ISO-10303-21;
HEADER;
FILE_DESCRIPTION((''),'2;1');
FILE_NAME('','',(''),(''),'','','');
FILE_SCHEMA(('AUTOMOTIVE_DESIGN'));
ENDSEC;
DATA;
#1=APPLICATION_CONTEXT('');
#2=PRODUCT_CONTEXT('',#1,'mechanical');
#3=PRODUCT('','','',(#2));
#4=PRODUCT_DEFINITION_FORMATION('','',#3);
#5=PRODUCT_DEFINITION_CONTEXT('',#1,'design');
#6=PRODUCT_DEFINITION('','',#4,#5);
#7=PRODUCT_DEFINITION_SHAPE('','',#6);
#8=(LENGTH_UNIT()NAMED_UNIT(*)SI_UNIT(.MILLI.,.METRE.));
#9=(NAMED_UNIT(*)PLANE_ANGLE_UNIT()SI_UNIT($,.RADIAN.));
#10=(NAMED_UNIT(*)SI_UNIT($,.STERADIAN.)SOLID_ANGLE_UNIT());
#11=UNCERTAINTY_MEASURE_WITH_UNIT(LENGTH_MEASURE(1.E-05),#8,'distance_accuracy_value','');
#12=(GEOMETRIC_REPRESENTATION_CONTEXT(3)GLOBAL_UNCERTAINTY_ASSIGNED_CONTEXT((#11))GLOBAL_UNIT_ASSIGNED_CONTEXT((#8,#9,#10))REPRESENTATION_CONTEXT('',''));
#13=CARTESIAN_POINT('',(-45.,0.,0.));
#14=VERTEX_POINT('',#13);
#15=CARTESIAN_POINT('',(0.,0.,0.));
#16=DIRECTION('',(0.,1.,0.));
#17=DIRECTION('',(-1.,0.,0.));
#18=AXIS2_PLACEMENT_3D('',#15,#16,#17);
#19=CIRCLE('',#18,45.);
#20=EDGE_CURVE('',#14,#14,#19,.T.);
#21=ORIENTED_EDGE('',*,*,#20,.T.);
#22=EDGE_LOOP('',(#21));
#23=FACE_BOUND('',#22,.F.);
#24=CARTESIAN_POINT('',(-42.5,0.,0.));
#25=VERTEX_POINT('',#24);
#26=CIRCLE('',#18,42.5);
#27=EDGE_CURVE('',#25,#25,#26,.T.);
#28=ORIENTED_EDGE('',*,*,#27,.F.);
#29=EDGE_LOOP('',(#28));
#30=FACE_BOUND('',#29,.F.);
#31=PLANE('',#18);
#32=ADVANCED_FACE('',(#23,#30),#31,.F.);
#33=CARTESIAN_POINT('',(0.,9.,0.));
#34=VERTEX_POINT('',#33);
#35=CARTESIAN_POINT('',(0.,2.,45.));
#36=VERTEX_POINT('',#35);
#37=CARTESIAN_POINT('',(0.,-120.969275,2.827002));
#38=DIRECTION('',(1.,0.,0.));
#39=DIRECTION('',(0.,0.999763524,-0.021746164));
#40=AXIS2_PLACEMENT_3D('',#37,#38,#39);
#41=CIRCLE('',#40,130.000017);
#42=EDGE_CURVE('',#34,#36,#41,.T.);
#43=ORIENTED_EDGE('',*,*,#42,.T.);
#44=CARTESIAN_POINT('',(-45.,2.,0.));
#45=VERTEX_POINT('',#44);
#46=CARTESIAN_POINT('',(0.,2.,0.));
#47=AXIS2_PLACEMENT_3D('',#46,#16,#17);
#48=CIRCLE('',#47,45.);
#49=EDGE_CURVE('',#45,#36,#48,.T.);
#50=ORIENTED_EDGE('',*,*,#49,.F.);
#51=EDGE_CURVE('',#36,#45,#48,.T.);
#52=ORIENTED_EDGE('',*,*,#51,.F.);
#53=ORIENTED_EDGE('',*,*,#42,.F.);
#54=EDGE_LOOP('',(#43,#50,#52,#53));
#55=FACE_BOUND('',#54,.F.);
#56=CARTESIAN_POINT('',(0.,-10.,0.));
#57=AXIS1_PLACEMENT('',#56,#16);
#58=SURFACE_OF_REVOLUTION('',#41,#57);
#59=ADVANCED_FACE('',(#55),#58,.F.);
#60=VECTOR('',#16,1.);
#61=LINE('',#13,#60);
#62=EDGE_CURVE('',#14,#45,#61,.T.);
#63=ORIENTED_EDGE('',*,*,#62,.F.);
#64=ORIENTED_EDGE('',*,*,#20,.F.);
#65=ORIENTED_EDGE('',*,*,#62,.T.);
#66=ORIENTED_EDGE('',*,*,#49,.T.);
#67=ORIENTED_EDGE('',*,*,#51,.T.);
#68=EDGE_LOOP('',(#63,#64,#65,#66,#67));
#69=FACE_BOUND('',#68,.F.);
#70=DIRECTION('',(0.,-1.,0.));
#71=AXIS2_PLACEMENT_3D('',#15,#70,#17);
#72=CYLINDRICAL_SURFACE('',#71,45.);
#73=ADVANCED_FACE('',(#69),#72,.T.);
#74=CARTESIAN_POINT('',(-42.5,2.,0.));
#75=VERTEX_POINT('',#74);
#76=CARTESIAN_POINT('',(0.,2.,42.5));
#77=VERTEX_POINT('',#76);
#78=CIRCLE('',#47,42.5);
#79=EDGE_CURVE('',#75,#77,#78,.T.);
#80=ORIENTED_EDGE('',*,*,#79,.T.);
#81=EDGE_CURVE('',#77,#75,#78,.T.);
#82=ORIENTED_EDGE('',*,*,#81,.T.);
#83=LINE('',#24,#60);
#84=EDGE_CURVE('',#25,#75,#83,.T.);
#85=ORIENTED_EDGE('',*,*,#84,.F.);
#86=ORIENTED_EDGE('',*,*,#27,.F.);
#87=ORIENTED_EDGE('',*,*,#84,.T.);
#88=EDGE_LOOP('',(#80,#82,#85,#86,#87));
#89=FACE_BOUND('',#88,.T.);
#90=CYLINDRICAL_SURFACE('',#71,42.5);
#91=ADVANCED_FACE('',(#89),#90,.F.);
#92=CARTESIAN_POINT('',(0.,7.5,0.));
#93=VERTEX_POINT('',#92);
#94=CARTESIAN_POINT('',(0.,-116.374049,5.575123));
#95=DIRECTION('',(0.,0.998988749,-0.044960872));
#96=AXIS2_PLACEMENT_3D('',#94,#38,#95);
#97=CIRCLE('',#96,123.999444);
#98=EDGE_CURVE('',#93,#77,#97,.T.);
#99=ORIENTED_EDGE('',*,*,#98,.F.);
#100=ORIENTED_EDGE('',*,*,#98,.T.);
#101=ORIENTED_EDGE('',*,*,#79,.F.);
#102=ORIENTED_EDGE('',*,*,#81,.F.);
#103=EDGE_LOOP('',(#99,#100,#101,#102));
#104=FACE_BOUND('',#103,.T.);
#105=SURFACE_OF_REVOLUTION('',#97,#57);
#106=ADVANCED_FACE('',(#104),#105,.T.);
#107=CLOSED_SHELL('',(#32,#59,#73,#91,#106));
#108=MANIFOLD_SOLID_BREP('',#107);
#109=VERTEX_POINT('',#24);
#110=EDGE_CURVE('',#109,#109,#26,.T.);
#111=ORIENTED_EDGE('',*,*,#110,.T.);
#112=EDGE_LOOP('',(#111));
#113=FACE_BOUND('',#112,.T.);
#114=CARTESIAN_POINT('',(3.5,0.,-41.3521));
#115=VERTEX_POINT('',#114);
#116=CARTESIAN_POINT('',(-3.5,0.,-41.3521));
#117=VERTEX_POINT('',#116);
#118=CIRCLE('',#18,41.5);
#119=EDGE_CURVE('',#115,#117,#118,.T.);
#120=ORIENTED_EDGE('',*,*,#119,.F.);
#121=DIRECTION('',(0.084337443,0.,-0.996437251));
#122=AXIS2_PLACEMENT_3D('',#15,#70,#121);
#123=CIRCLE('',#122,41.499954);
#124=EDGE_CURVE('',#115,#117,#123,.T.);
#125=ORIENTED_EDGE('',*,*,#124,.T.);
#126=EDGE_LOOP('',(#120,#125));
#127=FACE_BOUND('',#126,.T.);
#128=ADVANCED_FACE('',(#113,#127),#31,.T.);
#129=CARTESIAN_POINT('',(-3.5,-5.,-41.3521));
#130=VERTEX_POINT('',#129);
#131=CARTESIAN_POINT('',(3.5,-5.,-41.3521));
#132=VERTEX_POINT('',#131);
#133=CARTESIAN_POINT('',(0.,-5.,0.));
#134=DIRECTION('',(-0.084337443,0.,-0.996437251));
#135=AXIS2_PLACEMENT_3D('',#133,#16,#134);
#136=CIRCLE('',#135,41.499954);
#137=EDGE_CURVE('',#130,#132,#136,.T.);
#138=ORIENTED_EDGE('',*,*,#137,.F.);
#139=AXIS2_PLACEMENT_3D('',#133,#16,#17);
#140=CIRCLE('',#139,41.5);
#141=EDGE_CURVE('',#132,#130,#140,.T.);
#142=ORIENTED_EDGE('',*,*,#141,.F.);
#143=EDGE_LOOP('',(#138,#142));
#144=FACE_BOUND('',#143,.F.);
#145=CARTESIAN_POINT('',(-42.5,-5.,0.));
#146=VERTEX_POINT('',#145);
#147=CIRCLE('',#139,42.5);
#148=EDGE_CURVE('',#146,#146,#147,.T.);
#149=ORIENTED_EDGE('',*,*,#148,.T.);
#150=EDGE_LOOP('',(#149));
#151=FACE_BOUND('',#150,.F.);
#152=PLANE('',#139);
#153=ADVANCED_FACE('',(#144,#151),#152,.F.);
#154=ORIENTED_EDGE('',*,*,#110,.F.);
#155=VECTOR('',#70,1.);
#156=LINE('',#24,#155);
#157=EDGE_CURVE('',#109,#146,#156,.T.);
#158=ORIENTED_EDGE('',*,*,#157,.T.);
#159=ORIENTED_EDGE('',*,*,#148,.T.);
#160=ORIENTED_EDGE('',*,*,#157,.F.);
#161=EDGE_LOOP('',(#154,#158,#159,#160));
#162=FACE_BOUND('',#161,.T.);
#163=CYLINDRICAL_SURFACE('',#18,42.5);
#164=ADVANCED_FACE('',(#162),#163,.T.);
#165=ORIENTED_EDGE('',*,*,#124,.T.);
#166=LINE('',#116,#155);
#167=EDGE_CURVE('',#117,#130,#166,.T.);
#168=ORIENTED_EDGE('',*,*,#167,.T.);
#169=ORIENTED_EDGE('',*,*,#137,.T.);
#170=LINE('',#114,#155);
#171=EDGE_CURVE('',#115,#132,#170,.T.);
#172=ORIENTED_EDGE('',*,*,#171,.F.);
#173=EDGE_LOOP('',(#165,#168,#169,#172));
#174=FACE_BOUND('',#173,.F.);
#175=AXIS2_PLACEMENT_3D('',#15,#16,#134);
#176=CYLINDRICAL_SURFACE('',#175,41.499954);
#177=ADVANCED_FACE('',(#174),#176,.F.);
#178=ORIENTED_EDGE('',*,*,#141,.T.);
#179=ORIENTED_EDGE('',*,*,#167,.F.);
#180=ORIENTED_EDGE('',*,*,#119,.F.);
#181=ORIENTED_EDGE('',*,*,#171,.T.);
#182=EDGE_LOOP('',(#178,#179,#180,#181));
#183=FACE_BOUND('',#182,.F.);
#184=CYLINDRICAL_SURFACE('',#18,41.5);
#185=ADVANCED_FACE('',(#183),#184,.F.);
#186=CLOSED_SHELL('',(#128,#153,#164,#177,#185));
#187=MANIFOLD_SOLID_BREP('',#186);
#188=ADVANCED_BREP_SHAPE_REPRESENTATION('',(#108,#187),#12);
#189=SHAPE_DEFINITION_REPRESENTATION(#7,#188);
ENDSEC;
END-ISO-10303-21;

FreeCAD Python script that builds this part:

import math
import FreeCAD as App
import Part
import Sketcher

doc = App.newDocument("Part")
params = doc.addObject("Spreadsheet::Sheet", "Params")
for row, (alias, value) in enumerate([
    ("sketch1_diameter", "90 mm"),
    ("sketch1_diameter2", "85 mm"),
    ("pad1_length", "2 mm"),
    ("sketch2_diameter", "85 mm"),
    ("sketch2_diameter2", "83 mm"),
    ("pad2_length", "5 mm"),
    ("sketch3_radius", "124 mm"),
    ("sketch3_radius2", "130 mm"),
    ("sketch3_width", "1.5 mm"),
    ("sketch3_height", "2.5 mm"),
    ("revolution_angle", "360 deg"),
], start=1):
    params.set(f"A{row}", alias)
    params.set(f"B{row}", "=" + value)
    params.setAlias(f"B{row}", alias)

body = doc.addObject("PartDesign::Body", "Body")
body.AllowCompound = True

sketch1 = body.newObject("Sketcher::SketchObject", "Sketch")
sketch1.AttachmentSupport = (doc.getObject("XZ_Plane"), [""])
sketch1.MapMode = "FlatFace"
sketch1.addGeometry([
    Part.Circle(App.Vector(0, 0, 0), App.Vector(0, 0, 1), 45),
    Part.Circle(App.Vector(0, 0, 0), App.Vector(0, 0, 1), 42.5),
], False)
sketch1.addConstraint([
    Sketcher.Constraint("Coincident", 0, 3, -1, 1),
    Sketcher.Constraint("Coincident", 1, 3, -1, 1),
    Sketcher.Constraint("Diameter", 0, 90.0),
    Sketcher.Constraint("Diameter", 1, 85.0),
])
sketch1.setExpression("Constraints[2]", "Params.sketch1_diameter")
sketch1.setExpression("Constraints[3]", "Params.sketch1_diameter2")
pad1 = body.newObject("PartDesign::Pad", "Pad")
pad1.Profile = sketch1
pad1.setExpression("Length", "Params.pad1_length")
pad1.Reversed = True

sketch2 = body.newObject("Sketcher::SketchObject", "Sketch001")
sketch2.AttachmentSupport = (doc.getObject("XZ_Plane"), [""])
sketch2.MapMode = "FlatFace"
sketch2.addGeometry([
    Part.Circle(App.Vector(0, 0, 0), App.Vector(0, 0, 1), 42.5),
    Part.Circle(App.Vector(0, 0, 0), App.Vector(0, 0, 1), 41.5),
], False)
sketch2.addConstraint([
    Sketcher.Constraint("Coincident", 0, 3, -1, 1),
    Sketcher.Constraint("Coincident", 1, 3, -1, 1),
    Sketcher.Constraint("Diameter", 0, 85.0),
    Sketcher.Constraint("Diameter", 1, 83.0),
])
sketch2.setExpression("Constraints[2]", "Params.sketch2_diameter")
sketch2.setExpression("Constraints[3]", "Params.sketch2_diameter2")
pad2 = body.newObject("PartDesign::Pad", "Pad001")
pad2.Profile = sketch2
pad2.setExpression("Length", "Params.pad2_length")

sketch3 = body.newObject("Sketcher::SketchObject", "Sketch002")
sketch3.AttachmentSupport = (doc.getObject("YZ_Plane"), [""])
sketch3.MapMode = "FlatFace"
sketch3.addGeometry([
    Part.ArcOfCircle(Part.Circle(App.Vector(-116.3746, 5.5751, 0), App.Vector(0, 0, 1), 123.999993), math.radians(-2.576915), math.radians(17.324404)),
    Part.LineSegment(App.Vector(7.5, 0, 0), App.Vector(9, 0, 0)),
    Part.ArcOfCircle(Part.Circle(App.Vector(-120.9693, 2.827, 0), App.Vector(0, 0, 1), 130.000042), math.radians(-1.246061), math.radians(18.929688)),
    Part.LineSegment(App.Vector(2, 45, 0), App.Vector(2, 42.5, 0)),
], False)
sketch3.addConstraint([
    Sketcher.Constraint("Coincident", 0, 1, 1, 1),
    Sketcher.Constraint("Coincident", 1, 2, 2, 1),
    Sketcher.Constraint("Coincident", 2, 2, 3, 1),
    Sketcher.Constraint("Coincident", 3, 2, 0, 2),
    Sketcher.Constraint("Horizontal", 1),
    Sketcher.Constraint("Vertical", 3),
    Sketcher.Constraint("PointOnObject", 0, 1, -1),
    Sketcher.Constraint("Radius", 0, 124.0),
    Sketcher.Constraint("Radius", 2, 130.0),
    Sketcher.Constraint("DistanceX", 1, 1, 1, 2, 1.5),
    Sketcher.Constraint("DistanceX", -1, 1, 1, 2, 9.0),
    Sketcher.Constraint("DistanceY", 3, 2, 3, 1, 2.5),
    Sketcher.Constraint("DistanceX", -1, 1, 2, 2, 2.0),
    Sketcher.Constraint("DistanceY", -1, 1, 2, 2, 45.0),
])
sketch3.setExpression("Constraints[7]", "Params.sketch3_radius")
sketch3.setExpression("Constraints[8]", "Params.sketch3_radius2")
sketch3.setExpression("Constraints[9]", "Params.sketch3_width")
sketch3.setExpression("Constraints[11]", "Params.sketch3_height")
revolution = body.newObject("PartDesign::Revolution", "Revolution")
revolution.Profile = sketch3
revolution.ReferenceAxis = (sketch3, ["H_Axis"])
revolution.setExpression("Angle", "Params.revolution_angle")

doc.recompute()
